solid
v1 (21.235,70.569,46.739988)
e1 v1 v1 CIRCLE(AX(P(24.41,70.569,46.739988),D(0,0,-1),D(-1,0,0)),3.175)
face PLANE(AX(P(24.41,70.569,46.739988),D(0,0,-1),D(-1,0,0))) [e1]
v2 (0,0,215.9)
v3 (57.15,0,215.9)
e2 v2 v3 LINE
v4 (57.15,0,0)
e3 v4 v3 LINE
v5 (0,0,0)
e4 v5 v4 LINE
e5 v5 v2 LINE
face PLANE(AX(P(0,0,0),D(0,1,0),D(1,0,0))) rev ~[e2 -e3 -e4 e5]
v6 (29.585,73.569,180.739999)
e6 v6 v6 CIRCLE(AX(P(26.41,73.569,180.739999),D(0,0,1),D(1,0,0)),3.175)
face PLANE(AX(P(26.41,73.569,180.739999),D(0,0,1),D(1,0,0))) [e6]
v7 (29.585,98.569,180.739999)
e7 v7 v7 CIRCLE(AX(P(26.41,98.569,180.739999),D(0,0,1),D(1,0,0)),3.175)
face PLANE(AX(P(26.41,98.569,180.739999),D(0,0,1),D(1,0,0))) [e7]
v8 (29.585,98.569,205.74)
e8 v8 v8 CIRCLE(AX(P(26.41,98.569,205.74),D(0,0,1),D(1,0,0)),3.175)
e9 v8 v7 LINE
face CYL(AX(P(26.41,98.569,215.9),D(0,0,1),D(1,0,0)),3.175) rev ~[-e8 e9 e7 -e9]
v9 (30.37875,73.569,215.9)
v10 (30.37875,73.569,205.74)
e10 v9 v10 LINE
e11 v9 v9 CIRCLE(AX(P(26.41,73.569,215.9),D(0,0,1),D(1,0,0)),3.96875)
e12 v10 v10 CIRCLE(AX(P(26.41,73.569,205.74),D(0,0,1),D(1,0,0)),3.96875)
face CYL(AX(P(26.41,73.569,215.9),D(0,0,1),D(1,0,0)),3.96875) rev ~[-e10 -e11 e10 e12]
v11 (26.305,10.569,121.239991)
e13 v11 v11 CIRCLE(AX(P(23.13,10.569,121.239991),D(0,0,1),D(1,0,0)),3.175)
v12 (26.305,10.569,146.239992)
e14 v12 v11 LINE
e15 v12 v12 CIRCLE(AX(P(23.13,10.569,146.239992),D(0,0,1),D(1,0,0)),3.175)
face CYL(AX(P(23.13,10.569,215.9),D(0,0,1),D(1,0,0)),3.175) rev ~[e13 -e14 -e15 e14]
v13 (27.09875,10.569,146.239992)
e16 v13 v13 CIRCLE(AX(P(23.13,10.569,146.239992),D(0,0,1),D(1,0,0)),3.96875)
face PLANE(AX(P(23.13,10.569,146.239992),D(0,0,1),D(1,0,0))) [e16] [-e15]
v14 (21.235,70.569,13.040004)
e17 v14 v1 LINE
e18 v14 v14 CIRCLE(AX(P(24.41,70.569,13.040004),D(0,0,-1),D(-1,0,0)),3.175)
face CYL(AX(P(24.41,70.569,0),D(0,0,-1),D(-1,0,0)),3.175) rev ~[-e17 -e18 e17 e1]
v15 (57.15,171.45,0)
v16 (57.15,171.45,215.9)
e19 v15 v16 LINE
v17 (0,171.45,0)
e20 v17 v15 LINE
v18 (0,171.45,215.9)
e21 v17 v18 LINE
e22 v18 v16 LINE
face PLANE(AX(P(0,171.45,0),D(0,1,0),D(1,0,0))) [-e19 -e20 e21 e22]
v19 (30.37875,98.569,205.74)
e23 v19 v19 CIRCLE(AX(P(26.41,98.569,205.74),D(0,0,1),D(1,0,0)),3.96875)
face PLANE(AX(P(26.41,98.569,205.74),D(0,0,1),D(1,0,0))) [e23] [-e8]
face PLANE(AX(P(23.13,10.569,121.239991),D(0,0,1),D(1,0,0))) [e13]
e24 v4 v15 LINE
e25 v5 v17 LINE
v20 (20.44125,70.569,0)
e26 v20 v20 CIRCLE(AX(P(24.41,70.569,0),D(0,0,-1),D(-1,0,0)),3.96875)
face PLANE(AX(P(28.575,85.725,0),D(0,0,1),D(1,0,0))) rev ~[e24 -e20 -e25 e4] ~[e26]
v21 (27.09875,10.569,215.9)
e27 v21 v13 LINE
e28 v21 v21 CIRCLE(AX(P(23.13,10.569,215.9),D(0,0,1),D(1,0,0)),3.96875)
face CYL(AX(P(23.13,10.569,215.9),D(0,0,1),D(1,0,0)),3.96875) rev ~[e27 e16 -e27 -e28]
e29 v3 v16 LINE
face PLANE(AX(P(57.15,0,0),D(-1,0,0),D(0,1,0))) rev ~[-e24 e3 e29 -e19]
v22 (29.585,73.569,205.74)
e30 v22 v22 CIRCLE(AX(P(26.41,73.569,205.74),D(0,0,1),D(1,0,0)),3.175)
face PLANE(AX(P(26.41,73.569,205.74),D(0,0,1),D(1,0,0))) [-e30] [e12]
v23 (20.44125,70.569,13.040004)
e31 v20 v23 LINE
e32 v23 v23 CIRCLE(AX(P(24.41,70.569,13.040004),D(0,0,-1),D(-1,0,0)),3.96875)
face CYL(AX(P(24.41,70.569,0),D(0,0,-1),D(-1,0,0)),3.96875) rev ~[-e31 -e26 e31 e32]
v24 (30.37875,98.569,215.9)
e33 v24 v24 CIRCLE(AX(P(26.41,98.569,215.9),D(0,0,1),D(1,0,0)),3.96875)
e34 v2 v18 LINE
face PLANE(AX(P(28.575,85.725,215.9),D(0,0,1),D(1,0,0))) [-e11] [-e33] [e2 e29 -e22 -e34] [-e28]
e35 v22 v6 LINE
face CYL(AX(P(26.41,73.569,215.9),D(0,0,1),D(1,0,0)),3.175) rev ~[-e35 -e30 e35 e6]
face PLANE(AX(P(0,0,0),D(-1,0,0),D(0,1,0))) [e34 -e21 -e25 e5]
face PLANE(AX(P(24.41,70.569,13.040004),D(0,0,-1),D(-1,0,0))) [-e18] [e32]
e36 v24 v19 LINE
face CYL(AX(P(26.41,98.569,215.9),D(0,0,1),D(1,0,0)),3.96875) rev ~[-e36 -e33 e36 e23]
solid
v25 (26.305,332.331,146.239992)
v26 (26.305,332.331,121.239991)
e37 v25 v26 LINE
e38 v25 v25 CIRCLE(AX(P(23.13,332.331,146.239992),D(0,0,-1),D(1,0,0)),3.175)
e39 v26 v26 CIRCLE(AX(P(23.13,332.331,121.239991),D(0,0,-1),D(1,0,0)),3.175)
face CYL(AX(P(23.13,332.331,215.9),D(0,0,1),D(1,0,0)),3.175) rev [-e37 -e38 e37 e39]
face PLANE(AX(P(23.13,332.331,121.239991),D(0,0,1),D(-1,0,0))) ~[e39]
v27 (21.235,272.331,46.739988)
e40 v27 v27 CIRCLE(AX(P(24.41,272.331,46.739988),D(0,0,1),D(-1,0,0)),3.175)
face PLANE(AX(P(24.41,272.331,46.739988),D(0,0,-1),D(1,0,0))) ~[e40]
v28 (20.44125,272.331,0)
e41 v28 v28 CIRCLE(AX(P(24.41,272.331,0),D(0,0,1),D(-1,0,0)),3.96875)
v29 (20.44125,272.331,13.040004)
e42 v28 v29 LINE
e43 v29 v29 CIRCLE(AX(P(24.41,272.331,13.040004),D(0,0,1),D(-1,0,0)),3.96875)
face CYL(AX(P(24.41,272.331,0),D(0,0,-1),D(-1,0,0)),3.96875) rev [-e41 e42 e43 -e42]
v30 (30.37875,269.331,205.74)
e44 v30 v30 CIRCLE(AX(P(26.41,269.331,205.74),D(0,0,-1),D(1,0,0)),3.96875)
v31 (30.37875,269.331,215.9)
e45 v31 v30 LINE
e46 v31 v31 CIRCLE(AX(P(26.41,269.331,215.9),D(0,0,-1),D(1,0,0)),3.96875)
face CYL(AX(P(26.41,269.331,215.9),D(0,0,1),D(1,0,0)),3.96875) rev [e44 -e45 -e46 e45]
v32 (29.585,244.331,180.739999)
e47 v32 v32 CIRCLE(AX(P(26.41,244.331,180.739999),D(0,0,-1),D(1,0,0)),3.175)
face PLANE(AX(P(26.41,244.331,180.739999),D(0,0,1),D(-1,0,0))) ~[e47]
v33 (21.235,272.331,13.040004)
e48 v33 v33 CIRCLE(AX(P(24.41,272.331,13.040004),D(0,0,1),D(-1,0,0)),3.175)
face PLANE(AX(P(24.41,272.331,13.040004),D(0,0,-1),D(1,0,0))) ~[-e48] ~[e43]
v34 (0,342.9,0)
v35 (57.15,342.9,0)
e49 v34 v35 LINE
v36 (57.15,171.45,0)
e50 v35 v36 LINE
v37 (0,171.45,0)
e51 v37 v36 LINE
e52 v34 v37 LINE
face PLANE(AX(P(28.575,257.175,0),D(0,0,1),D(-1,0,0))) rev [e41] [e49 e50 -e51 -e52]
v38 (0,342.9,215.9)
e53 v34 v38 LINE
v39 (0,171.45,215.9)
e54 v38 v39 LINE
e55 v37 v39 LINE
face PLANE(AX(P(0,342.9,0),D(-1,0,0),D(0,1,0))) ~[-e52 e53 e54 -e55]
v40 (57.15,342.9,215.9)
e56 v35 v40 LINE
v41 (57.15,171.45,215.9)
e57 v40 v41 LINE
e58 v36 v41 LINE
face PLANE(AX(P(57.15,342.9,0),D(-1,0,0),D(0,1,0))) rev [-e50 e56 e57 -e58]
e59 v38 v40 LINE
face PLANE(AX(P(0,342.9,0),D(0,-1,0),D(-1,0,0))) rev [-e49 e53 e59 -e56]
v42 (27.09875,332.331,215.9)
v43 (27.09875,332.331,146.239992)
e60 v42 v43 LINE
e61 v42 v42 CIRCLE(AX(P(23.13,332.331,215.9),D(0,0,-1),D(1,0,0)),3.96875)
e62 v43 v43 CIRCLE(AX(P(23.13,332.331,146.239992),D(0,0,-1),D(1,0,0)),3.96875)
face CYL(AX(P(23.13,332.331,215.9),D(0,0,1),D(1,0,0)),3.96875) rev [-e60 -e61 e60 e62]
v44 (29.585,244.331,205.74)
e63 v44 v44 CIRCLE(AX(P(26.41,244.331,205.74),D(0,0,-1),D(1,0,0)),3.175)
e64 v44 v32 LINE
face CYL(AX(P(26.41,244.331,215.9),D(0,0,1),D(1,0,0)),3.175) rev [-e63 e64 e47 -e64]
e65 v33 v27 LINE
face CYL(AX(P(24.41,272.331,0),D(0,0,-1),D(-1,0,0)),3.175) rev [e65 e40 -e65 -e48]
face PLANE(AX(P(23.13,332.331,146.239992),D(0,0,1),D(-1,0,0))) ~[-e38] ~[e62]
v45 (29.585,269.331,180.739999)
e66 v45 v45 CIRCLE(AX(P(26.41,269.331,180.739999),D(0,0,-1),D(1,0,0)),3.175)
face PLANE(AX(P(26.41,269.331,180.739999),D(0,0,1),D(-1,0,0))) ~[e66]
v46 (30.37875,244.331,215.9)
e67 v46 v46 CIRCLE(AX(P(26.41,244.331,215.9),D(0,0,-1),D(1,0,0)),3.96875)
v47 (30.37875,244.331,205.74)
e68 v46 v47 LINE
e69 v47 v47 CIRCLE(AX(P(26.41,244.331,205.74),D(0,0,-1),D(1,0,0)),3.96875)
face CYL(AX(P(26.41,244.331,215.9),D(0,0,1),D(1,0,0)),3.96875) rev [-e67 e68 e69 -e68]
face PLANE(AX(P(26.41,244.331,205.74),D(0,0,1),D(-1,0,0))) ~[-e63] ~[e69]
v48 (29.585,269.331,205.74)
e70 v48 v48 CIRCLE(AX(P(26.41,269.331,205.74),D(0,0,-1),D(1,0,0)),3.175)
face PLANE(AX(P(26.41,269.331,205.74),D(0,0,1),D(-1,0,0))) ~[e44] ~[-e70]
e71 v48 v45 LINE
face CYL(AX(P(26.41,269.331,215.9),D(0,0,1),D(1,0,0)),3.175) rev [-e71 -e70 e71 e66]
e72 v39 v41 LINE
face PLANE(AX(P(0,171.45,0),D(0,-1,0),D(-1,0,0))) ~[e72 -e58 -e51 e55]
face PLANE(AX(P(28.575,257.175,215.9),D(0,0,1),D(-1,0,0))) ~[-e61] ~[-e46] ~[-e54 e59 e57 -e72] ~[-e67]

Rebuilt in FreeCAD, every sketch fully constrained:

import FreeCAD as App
import Part
import Sketcher
Q = App.Units.Quantity

doc = App.newDocument("Part")
body = doc.addObject("PartDesign::Body", "Body")

# Sketch on XY plane
sketch1 = doc.addObject("Sketcher::SketchObject", "Sketch")
body.addObject(sketch1)
sketch1.AttachmentSupport = (doc.XY_Plane, [""])
sketch1.MapMode = "FlatFace"
sketch1.addGeometry([
    Part.LineSegment(App.Vector(0, 171, 0), App.Vector(0, 0, 0)),
    Part.LineSegment(App.Vector(0, 0, 0), App.Vector(57, 0, 0)),
    Part.LineSegment(App.Vector(57, 0, 0), App.Vector(57, 171, 0)),
    Part.LineSegment(App.Vector(57, 171, 0), App.Vector(0, 171, 0)),
], False)
sketch1.addConstraint([
    Sketcher.Constraint("Coincident", 0, 2, 1, 1),
    Sketcher.Constraint("Coincident", 1, 2, 2, 1),
    Sketcher.Constraint("Coincident", 2, 2, 3, 1),
    Sketcher.Constraint("Coincident", 3, 2, 0, 1),
    Sketcher.Constraint("Vertical", 0),
    Sketcher.Constraint("Horizontal", 1),
    Sketcher.Constraint("Vertical", 2),
    Sketcher.Constraint("Horizontal", 3),
    Sketcher.Constraint("Coincident", 0, 2, -1, 1),
    Sketcher.Constraint("DistanceX", 1, 1, 1, 2, Q("2.25 in")),
    Sketcher.Constraint("DistanceY", 0, 2, 0, 1, Q("6.75 in")),
])
pad1 = doc.addObject("PartDesign::Pad", "Pad")
body.addObject(pad1)
pad1.Profile = sketch1
pad1.Length = Q("8.5 in")

# Sketch on XY plane
sketch2 = doc.addObject("Sketcher::SketchObject", "Sketch001")
body.addObject(sketch2)
sketch2.AttachmentSupport = (doc.XY_Plane, [""])
sketch2.MapMode = "FlatFace"
sketch2.addGeometry(Part.Circle(App.Vector(24.4, 70.6, 0), App.Vector(0, 0, 1), 3.2), False)
sketch2.addConstraint([
    Sketcher.Constraint("Diameter", 0, Q("0.25 in")),
    Sketcher.Constraint("DistanceX", -1, 1, 0, 3, Q("24.41 mm")),
    Sketcher.Constraint("DistanceY", -1, 1, 0, 3, Q("70.569 mm")),
])
pocket1 = doc.addObject("PartDesign::Pocket", "Pocket")
body.addObject(pocket1)
pocket1.Profile = sketch2
pocket1.Length = 46.739988
pocket1.Reversed = True

# Sketch on XY plane
sketch3 = doc.addObject("Sketcher::SketchObject", "Sketch002")
body.addObject(sketch3)
sketch3.AttachmentSupport = (doc.XY_Plane, [""])
sketch3.MapMode = "FlatFace"
sketch3.addGeometry(Part.Circle(App.Vector(24.4, 70.6, 0), App.Vector(0, 0, 1), 4), False)
sketch3.addConstraint([
    Sketcher.Constraint("Diameter", 0, Q("0.3125 in")),
    Sketcher.Constraint("DistanceX", -1, 1, 0, 3, Q("24.41 mm")),
    Sketcher.Constraint("DistanceY", -1, 1, 0, 3, Q("70.569 mm")),
])
pocket2 = doc.addObject("PartDesign::Pocket", "Pocket001")
body.addObject(pocket2)
pocket2.Profile = sketch3
pocket2.Length = 13.040004
pocket2.Reversed = True

# Sketch on XY plane
sketch4 = doc.addObject("Sketcher::SketchObject", "Sketch003")
body.addObject(sketch4)
sketch4.AttachmentSupport = (doc.XY_Plane, [""])
sketch4.MapMode = "FlatFace"
sketch4.AttachmentOffset = App.Placement(App.Vector(0, 0, 8.5 * 25.4), App.Rotation())
sketch4.addGeometry([
    Part.Circle(App.Vector(26.4, 73.6, 0), App.Vector(0, 0, 1), 3.2),
    Part.Circle(App.Vector(26.4, 98.6, 0), App.Vector(0, 0, 1), 3.2),
], False)
sketch4.addConstraint([
    Sketcher.Constraint("Equal", 0, 1),
    Sketcher.Constraint("Vertical", 0, 3, 1, 3),
    Sketcher.Constraint("Diameter", 0, Q("0.25 in")),
    Sketcher.Constraint("DistanceX", -1, 1, 0, 3, Q("26.41 mm")),
    Sketcher.Constraint("DistanceY", -1, 1, 0, 3, Q("73.569 mm")),
    Sketcher.Constraint("DistanceY", -1, 1, 1, 3, Q("98.569 mm")),
])
pocket3 = doc.addObject("PartDesign::Pocket", "Pocket002")
body.addObject(pocket3)
pocket3.Profile = sketch4
pocket3.Length = 35.160001

# Sketch on XY plane
sketch5 = doc.addObject("Sketcher::SketchObject", "Sketch004")
body.addObject(sketch5)
sketch5.AttachmentSupport = (doc.XY_Plane, [""])
sketch5.MapMode = "FlatFace"
sketch5.AttachmentOffset = App.Placement(App.Vector(0, 0, 8.5 * 25.4), App.Rotation())
sketch5.addGeometry(Part.Circle(App.Vector(23.1, 10.6, 0), App.Vector(0, 0, 1), 3.2), False)
sketch5.addConstraint([
    Sketcher.Constraint("Diameter", 0, Q("0.25 in")),
    Sketcher.Constraint("DistanceX", -1, 1, 0, 3, Q("23.13 mm")),
    Sketcher.Constraint("DistanceY", -1, 1, 0, 3, Q("10.569 mm")),
])
pocket4 = doc.addObject("PartDesign::Pocket", "Pocket003")
body.addObject(pocket4)
pocket4.Profile = sketch5
pocket4.Length = 94.660009

# Sketch on XY plane
sketch6 = doc.addObject("Sketcher::SketchObject", "Sketch005")
body.addObject(sketch6)
sketch6.AttachmentSupport = (doc.XY_Plane, [""])
sketch6.MapMode = "FlatFace"
sketch6.AttachmentOffset = App.Placement(App.Vector(0, 0, 8.5 * 25.4), App.Rotation())
sketch6.addGeometry([
    Part.Circle(App.Vector(26.4, 73.6, 0), App.Vector(0, 0, 1), 4),
    Part.Circle(App.Vector(26.4, 98.6, 0), App.Vector(0, 0, 1), 4),
], False)
sketch6.addConstraint([
    Sketcher.Constraint("Equal", 0, 1),
    Sketcher.Constraint("Vertical", 0, 3, 1, 3),
    Sketcher.Constraint("Diameter", 0, Q("0.3125 in")),
    Sketcher.Constraint("DistanceX", -1, 1, 0, 3, Q("26.41 mm")),
    Sketcher.Constraint("DistanceY", -1, 1, 0, 3, Q("73.569 mm")),
    Sketcher.Constraint("DistanceY", -1, 1, 1, 3, Q("98.569 mm")),
])
pocket5 = doc.addObject("PartDesign::Pocket", "Pocket004")
body.addObject(pocket5)
pocket5.Profile = sketch6
pocket5.Length = Q("0.4 in")

# Sketch on XY plane
sketch7 = doc.addObject("Sketcher::SketchObject", "Sketch006")
body.addObject(sketch7)
sketch7.AttachmentSupport = (doc.XY_Plane, [""])
sketch7.MapMode = "FlatFace"
sketch7.AttachmentOffset = App.Placement(App.Vector(0, 0, 8.5 * 25.4), App.Rotation())
sketch7.addGeometry(Part.Circle(App.Vector(23.1, 10.6, 0), App.Vector(0, 0, 1), 4), False)
sketch7.addConstraint([
    Sketcher.Constraint("Diameter", 0, Q("0.3125 in")),
    Sketcher.Constraint("DistanceX", -1, 1, 0, 3, Q("23.13 mm")),
    Sketcher.Constraint("DistanceY", -1, 1, 0, 3, Q("10.569 mm")),
])
pocket6 = doc.addObject("PartDesign::Pocket", "Pocket005")
body.addObject(pocket6)
pocket6.Profile = sketch7
pocket6.Length = 69.660008
body2 = doc.addObject("PartDesign::Body", "Body001")
doc.recompute()

mirroring = doc.addObject("Part::Mirroring", "Mirroring")
mirroring.Source = body
mirroring.Base = App.Vector(0, 171.45, 215.9)
mirroring.Normal = App.Vector(0, -1, 0)
body2.BaseFeature = mirroring
doc.recompute()
mirroring.Visibility = False

doc.recompute()
